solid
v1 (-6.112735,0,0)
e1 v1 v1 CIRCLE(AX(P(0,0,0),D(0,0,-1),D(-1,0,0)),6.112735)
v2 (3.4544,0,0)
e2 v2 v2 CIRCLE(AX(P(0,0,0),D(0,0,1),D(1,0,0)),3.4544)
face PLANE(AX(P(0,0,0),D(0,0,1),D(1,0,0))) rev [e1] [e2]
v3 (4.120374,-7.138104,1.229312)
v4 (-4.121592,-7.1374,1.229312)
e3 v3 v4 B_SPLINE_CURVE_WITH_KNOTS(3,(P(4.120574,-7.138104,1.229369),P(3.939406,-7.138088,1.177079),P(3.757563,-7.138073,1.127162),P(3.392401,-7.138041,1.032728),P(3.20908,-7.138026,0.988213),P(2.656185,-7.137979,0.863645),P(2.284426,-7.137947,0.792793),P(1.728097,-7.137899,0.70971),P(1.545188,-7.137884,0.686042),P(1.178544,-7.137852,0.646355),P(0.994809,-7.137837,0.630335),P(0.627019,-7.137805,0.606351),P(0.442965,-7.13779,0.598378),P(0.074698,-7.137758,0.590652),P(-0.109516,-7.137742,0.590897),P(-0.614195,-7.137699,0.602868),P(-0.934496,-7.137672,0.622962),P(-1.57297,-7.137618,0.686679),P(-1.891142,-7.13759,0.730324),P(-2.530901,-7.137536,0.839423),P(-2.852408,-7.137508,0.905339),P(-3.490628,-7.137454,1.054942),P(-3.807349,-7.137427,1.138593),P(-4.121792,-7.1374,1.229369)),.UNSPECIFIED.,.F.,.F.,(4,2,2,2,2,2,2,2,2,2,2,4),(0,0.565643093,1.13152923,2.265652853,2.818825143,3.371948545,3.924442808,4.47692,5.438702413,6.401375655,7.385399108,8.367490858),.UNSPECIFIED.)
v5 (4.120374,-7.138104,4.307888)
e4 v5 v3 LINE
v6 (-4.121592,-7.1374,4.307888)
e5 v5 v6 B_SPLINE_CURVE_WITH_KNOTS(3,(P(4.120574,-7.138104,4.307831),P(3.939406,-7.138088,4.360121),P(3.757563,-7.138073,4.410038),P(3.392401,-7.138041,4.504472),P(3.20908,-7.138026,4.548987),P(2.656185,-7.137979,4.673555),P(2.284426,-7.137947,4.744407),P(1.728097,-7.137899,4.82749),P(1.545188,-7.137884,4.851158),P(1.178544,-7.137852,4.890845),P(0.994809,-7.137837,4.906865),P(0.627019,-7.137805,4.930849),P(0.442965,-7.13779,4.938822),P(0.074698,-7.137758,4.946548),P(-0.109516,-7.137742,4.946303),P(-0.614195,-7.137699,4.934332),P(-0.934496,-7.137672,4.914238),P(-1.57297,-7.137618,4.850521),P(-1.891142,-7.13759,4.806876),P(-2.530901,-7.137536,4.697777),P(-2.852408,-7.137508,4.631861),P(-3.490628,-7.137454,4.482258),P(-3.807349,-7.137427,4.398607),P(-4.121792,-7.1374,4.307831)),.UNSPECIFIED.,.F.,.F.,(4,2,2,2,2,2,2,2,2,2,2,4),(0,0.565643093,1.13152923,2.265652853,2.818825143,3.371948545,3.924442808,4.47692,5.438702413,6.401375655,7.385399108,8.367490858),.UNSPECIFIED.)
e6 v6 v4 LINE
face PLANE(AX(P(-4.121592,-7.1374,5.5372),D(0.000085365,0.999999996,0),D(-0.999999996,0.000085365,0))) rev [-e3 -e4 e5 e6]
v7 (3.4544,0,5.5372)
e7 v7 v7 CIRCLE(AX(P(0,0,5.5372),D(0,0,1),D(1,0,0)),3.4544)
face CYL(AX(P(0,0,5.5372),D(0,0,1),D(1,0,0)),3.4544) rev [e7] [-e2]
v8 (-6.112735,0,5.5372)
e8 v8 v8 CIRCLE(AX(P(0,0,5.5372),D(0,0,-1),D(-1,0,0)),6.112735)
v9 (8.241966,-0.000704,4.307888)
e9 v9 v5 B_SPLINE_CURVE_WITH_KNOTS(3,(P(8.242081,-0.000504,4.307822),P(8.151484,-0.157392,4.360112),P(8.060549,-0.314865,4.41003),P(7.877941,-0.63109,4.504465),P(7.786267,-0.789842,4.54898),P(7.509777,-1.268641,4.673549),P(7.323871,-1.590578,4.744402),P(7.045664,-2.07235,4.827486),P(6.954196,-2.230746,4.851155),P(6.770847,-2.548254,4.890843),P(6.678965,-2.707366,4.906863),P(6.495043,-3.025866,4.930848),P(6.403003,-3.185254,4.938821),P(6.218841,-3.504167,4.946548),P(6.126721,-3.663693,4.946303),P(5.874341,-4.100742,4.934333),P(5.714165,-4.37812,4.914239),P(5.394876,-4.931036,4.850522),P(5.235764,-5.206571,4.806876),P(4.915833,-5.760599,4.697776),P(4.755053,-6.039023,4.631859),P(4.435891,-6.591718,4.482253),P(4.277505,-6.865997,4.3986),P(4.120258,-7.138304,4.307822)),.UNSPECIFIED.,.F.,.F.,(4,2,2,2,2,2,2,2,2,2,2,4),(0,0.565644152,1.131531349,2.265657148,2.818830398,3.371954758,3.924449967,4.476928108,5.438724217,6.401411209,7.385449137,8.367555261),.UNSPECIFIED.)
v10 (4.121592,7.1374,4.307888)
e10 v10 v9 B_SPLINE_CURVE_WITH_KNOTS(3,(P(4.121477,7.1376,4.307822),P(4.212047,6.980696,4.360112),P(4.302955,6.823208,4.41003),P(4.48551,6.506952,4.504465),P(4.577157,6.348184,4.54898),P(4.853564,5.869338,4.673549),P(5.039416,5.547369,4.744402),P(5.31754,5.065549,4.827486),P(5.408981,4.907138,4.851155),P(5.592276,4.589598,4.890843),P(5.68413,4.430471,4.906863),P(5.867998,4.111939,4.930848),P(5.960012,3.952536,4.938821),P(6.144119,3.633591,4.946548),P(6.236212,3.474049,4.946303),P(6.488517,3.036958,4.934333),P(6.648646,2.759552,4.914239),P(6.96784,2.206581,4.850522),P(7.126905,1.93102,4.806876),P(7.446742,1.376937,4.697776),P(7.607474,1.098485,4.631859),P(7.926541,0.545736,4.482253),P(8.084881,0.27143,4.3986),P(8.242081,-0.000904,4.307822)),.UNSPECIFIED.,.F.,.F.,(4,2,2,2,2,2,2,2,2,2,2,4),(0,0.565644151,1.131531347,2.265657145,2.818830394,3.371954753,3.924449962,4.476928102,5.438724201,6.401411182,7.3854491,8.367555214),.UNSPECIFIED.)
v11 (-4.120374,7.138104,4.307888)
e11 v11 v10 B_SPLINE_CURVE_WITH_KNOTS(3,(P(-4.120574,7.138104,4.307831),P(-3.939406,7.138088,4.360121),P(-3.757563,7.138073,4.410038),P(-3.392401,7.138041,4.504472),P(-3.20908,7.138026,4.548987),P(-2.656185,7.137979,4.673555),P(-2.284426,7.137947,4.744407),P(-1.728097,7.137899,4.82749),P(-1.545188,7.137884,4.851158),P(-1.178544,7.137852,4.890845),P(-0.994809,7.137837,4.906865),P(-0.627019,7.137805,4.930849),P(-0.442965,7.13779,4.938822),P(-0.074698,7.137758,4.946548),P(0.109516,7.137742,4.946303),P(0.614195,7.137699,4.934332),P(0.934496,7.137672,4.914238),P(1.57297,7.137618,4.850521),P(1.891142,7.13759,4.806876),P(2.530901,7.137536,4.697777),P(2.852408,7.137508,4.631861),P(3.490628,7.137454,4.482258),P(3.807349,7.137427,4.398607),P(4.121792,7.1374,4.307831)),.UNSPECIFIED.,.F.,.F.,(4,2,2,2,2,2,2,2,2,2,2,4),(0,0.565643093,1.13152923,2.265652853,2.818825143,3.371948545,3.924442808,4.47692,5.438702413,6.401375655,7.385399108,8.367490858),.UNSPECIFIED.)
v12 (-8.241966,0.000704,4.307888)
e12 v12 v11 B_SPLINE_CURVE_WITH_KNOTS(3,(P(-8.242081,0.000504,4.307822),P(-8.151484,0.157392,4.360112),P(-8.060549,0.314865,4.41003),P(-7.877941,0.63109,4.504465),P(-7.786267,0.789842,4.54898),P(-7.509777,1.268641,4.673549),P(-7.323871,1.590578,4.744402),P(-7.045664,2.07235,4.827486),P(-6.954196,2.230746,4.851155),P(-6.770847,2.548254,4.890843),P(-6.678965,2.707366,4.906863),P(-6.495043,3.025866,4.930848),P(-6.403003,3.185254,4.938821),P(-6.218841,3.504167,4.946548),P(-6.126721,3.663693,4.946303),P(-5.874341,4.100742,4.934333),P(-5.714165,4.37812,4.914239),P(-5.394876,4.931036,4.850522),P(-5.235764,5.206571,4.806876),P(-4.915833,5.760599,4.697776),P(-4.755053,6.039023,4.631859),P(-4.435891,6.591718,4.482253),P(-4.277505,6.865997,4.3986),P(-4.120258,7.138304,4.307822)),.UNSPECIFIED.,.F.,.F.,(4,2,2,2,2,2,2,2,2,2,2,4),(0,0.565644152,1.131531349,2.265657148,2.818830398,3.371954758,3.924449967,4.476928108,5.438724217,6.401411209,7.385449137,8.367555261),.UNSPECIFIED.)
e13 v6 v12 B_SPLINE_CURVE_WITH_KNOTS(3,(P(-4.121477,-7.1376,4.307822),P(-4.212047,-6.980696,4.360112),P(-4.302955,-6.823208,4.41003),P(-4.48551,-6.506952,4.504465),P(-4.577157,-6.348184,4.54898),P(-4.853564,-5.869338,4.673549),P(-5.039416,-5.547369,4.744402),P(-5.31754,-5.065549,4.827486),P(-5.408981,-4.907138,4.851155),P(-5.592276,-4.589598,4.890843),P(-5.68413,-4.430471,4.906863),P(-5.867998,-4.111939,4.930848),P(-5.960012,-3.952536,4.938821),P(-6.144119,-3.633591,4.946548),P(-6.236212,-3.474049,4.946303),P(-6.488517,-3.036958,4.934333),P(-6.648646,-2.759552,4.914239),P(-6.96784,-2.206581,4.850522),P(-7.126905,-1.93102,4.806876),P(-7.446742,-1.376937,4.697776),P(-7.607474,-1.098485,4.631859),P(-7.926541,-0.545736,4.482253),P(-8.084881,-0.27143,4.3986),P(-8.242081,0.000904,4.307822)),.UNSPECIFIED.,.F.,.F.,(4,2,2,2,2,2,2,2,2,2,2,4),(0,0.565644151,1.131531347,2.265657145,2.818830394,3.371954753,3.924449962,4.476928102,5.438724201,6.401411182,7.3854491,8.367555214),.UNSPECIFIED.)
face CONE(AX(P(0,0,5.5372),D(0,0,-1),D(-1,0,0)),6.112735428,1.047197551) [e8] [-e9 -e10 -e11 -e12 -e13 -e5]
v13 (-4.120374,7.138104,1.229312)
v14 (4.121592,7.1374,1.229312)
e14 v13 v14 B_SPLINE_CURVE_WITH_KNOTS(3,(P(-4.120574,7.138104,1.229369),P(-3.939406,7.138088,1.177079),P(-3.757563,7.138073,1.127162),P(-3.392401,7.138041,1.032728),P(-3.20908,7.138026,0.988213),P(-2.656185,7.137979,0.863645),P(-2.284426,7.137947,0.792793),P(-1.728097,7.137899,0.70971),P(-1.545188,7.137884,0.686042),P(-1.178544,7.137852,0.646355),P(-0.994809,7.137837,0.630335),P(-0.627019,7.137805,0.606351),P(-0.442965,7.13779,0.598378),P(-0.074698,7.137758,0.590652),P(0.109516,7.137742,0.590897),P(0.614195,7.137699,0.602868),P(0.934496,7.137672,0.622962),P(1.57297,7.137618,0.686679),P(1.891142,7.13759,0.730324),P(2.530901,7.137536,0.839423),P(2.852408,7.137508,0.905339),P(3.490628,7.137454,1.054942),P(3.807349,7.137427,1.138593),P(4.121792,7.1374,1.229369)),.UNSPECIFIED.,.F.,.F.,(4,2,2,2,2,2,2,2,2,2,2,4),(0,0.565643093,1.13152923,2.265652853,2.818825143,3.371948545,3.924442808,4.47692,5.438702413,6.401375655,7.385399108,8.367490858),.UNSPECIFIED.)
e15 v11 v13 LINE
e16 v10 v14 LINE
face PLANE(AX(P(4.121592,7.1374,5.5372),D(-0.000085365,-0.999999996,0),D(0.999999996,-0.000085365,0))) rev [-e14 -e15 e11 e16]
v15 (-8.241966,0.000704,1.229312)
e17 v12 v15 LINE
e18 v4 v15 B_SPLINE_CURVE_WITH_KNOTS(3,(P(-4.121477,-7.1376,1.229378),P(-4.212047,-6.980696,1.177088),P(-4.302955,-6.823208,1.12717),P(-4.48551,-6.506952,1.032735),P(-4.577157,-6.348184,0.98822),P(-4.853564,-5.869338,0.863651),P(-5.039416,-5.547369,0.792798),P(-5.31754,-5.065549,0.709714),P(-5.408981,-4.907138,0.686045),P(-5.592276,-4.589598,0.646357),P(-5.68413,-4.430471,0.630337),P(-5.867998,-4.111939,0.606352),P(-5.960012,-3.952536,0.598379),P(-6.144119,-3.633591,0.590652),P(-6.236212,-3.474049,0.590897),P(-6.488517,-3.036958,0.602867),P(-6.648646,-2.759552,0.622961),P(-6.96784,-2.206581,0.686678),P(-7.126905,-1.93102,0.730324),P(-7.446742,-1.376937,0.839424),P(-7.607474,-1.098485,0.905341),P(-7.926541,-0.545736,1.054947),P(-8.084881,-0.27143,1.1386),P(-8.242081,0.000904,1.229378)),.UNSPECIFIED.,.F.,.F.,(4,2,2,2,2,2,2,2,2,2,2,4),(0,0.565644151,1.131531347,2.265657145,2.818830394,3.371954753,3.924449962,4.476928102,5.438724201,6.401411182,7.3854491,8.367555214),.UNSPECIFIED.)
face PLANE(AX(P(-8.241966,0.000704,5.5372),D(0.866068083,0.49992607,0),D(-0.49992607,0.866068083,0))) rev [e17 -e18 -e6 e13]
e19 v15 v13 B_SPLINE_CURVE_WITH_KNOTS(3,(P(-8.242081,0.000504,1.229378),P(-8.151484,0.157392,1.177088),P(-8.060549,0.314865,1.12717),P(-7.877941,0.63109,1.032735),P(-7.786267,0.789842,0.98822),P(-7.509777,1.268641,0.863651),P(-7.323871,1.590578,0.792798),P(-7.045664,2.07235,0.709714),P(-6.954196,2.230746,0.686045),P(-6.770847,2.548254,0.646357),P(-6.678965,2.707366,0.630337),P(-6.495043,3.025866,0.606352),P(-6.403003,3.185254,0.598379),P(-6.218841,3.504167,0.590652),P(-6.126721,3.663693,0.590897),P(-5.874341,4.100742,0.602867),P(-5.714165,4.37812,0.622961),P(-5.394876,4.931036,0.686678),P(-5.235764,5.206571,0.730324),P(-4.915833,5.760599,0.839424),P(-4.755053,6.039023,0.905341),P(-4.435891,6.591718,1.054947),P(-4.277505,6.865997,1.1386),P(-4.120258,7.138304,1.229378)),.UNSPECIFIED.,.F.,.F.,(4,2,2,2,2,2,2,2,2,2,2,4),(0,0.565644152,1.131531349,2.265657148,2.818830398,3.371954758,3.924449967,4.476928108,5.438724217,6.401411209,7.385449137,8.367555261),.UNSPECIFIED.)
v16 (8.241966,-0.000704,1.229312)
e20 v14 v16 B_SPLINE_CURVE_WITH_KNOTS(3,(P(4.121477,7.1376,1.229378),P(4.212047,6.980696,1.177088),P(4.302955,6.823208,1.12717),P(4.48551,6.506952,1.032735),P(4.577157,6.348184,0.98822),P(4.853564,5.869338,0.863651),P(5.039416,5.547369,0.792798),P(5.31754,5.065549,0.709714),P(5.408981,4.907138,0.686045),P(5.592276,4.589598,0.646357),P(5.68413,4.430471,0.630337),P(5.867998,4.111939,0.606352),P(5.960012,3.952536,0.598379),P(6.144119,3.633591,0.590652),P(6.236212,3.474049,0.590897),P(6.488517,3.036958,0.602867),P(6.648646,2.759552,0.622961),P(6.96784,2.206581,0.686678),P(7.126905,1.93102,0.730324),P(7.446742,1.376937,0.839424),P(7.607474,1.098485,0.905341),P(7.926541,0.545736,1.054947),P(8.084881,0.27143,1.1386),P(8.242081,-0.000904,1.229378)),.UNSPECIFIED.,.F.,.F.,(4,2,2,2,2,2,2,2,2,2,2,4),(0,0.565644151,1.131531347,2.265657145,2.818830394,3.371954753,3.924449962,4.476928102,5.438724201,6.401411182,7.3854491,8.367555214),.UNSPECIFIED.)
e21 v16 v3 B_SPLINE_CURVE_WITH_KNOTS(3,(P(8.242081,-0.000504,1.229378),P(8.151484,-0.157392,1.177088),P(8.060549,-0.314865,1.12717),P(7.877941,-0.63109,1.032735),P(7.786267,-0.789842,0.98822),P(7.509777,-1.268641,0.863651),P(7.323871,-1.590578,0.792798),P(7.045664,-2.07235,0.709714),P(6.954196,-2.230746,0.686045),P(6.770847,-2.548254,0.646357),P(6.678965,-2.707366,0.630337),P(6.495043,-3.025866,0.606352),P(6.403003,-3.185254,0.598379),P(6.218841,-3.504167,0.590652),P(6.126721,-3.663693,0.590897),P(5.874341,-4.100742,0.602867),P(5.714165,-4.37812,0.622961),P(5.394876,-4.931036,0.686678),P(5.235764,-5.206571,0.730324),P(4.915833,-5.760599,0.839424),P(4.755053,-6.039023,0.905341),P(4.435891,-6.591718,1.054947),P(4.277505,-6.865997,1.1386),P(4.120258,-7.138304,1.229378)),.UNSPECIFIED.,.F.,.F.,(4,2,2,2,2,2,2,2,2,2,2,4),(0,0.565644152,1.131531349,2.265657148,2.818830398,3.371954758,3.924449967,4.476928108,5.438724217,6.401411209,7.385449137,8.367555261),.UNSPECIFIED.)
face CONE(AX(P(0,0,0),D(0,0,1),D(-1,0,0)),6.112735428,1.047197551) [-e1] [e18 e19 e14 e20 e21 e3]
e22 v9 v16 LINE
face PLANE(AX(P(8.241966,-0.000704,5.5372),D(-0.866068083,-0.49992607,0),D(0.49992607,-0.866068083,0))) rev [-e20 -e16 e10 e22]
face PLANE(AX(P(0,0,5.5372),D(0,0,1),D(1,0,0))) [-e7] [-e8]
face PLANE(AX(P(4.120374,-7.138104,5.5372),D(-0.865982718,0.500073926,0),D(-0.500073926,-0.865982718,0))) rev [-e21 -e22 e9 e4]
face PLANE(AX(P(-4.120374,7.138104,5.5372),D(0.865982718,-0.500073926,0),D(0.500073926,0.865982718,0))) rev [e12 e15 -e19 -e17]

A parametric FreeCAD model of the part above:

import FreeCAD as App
import Part
import Sketcher
Q = App.Units.Quantity


def faces_at(feature, points):
    """Names of the faces that lie closest to the given points."""
    faces = feature.Shape.Faces
    near = lambda p: min(range(len(faces)), key=lambda i: faces[i].distToShape(Part.Vertex(*p))[0])
    return sorted({f"Face{near(p) + 1}" for p in points})

doc = App.newDocument("Part")
body = doc.addObject("PartDesign::Body", "Body")

# Sketch on XY plane
sketch1 = doc.addObject("Sketcher::SketchObject", "Sketch")
body.addObject(sketch1)
sketch1.AttachmentSupport = (doc.XY_Plane, [""])
sketch1.MapMode = "FlatFace"
sketch1.addGeometry(Part.LineSegment(App.Vector(4, 7, 0), App.Vector(-4, 7, 0)), False)
sketch1.addGeometry(Part.LineSegment(App.Vector(-4, 7, 0), App.Vector(-8, 0, 0)), False)
sketch1.addGeometry(Part.LineSegment(App.Vector(-8, 0, 0), App.Vector(-4, -7, 0)), False)
sketch1.addGeometry(Part.LineSegment(App.Vector(-4, -7, 0), App.Vector(4, -7, 0)), False)
sketch1.addGeometry(Part.LineSegment(App.Vector(4, -7, 0), App.Vector(8, 0, 0)), False)
sketch1.addGeometry(Part.LineSegment(App.Vector(8, 0, 0), App.Vector(4, 7, 0)), False)
sketch1.addConstraint(Sketcher.Constraint("Coincident", 0, 2, 1, 1))
sketch1.addConstraint(Sketcher.Constraint("Coincident", 1, 2, 2, 1))
sketch1.addConstraint(Sketcher.Constraint("Coincident", 2, 2, 3, 1))
sketch1.addConstraint(Sketcher.Constraint("Coincident", 3, 2, 4, 1))
sketch1.addConstraint(Sketcher.Constraint("Coincident", 4, 2, 5, 1))
sketch1.addConstraint(Sketcher.Constraint("Coincident", 5, 2, 0, 1))
sketch1.addConstraint(Sketcher.Constraint("Symmetric", 0, 2, 3, 2, -1, 1))
sketch1.addConstraint(Sketcher.Constraint("Symmetric", 1, 2, 4, 2, -1, 1))
sketch1.addConstraint(Sketcher.Constraint("Symmetric", 2, 2, 5, 2, -1, 1))
sketch1.addConstraint(Sketcher.Constraint("Equal", 0, 1))
sketch1.addConstraint(Sketcher.Constraint("Equal", 1, 2))
sketch1.addConstraint(Sketcher.Constraint("DistanceY", 2, 2, -1, 1, Q("0.281 in")))
sketch1.addConstraint(Sketcher.Constraint("DistanceY", 1, 2, 0, 2, Q("0.281 in")))
sketch1.addConstraint(Sketcher.Constraint("DistanceX", 2, 2, 0, 2, Q("0.001219 mm")))
sketch1.addConstraint(Sketcher.Constraint("DistanceX", 1, 2, 3, 2, Q("12.362339 mm")))
pad1 = doc.addObject("PartDesign::Pad", "Pad")
body.addObject(pad1)
pad1.Profile = sketch1
pad1.Length = Q("0.218 in")
body2 = doc.addObject("PartDesign::Body", "Body001")

# Sketch on XY plane
sketch2 = doc.addObject("Sketcher::SketchObject", "Sketch001")
body2.addObject(sketch2)
sketch2.AttachmentSupport = (doc.getObject("XY_Plane001"), [""])
sketch2.MapMode = "FlatFace"
sketch2.addGeometry(Part.LineSegment(App.Vector(34, 33, 0), App.Vector(34, -33, 0)), False)
sketch2.addGeometry(Part.LineSegment(App.Vector(34, -33, 0), App.Vector(-34, -33, 0)), False)
sketch2.addGeometry(Part.LineSegment(App.Vector(-34, -33, 0), App.Vector(-34, 33, 0)), False)
sketch2.addGeometry(Part.LineSegment(App.Vector(-34, 33, 0), App.Vector(34, 33, 0)), False)
sketch2.addGeometry(Part.Circle(App.Vector(0, 0, 0), App.Vector(0, 0, 1), 6), False)
sketch2.addConstraint(Sketcher.Constraint("Coincident", 0, 2, 1, 1))
sketch2.addConstraint(Sketcher.Constraint("Coincident", 1, 2, 2, 1))
sketch2.addConstraint(Sketcher.Constraint("Coincident", 2, 2, 3, 1))
sketch2.addConstraint(Sketcher.Constraint("Coincident", 3, 2, 0, 1))
sketch2.addConstraint(Sketcher.Constraint("Vertical", 0))
sketch2.addConstraint(Sketcher.Constraint("Horizontal", 1))
sketch2.addConstraint(Sketcher.Constraint("Vertical", 2))
sketch2.addConstraint(Sketcher.Constraint("Horizontal", 3))
sketch2.addConstraint(Sketcher.Constraint("Coincident", 4, 3, -1, 1))
sketch2.addConstraint(Sketcher.Constraint("Symmetric", 0, 2, 2, 2, -1, 1))
sketch2.addConstraint(Sketcher.Constraint("Diameter", 4, Q("12.225471 mm")))
sketch2.addConstraint(Sketcher.Constraint("DistanceX", 1, 2, 1, 1, Q("68.81 mm")))
sketch2.addConstraint(Sketcher.Constraint("DistanceY", 0, 2, 0, 1, Q("66.602 mm")))
pad2 = doc.addObject("PartDesign::Pad", "Pad001")
body2.addObject(pad2)
pad2.Profile = sketch2
pad2.Length = 13.228782
doc.recompute()

draft = doc.addObject("PartDesign::Draft", "Draft")
body2.addObject(draft)
draft.Base = (pad2, faces_at(pad2, [
    (0, -33.301, 6.614),
    (-34.405, 0, 6.614),
    (0, 33.301, 6.614),
    (34.405, 0, 6.614),
    (6.113, 0, 6.614),
]))
draft.NeutralPlane = (doc.getObject("XY_Plane001"), [""])
draft.Angle = 60
draft.Reversed = False
doc.recompute()

boolean = doc.addObject("PartDesign::Boolean", "Boolean")
body.addObject(boolean)
boolean.Type = "Cut"
boolean.addObjects([body2])
body3 = doc.addObject("PartDesign::Body", "Body002")

# Sketch on XY plane
sketch3 = doc.addObject("Sketcher::SketchObject", "Sketch002")
body3.addObject(sketch3)
sketch3.AttachmentSupport = (doc.getObject("XY_Plane002"), [""])
sketch3.MapMode = "FlatFace"
sketch3.AttachmentOffset = App.Placement(App.Vector(0, 0, 0.218 * 25.4), App.Rotation())
sketch3.addGeometry(Part.LineSegment(App.Vector(34, -33, 0), App.Vector(34, 33, 0)), False)
sketch3.addGeometry(Part.LineSegment(App.Vector(34, 33, 0), App.Vector(-34, 33, 0)), False)
sketch3.addGeometry(Part.LineSegment(App.Vector(-34, 33, 0), App.Vector(-34, -33, 0)), False)
sketch3.addGeometry(Part.LineSegment(App.Vector(-34, -33, 0), App.Vector(34, -33, 0)), False)
sketch3.addGeometry(Part.Circle(App.Vector(0, 0, 0), App.Vector(0, 0, 1), 6), False)
sketch3.addConstraint(Sketcher.Constraint("Coincident", 0, 2, 1, 1))
sketch3.addConstraint(Sketcher.Constraint("Coincident", 1, 2, 2, 1))
sketch3.addConstraint(Sketcher.Constraint("Coincident", 2, 2, 3, 1))
sketch3.addConstraint(Sketcher.Constraint("Coincident", 3, 2, 0, 1))
sketch3.addConstraint(Sketcher.Constraint("Vertical", 0))
sketch3.addConstraint(Sketcher.Constraint("Horizontal", 1))
sketch3.addConstraint(Sketcher.Constraint("Vertical", 2))
sketch3.addConstraint(Sketcher.Constraint("Horizontal", 3))
sketch3.addConstraint(Sketcher.Constraint("Coincident", 4, 3, -1, 1))
sketch3.addConstraint(Sketcher.Constraint("Symmetric", 0, 2, 2, 2, -1, 1))
sketch3.addConstraint(Sketcher.Constraint("Diameter", 4, Q("12.225471 mm")))
sketch3.addConstraint(Sketcher.Constraint("DistanceX", 1, 2, 1, 1, Q("68.81 mm")))
sketch3.addConstraint(Sketcher.Constraint("DistanceY", 0, 1, 0, 2, Q("66.602 mm")))
pad3 = doc.addObject("PartDesign::Pad", "Pad002")
body3.addObject(pad3)
pad3.Profile = sketch3
pad3.Length = 13.228782
pad3.Reversed = True
doc.recompute()

datumplane = doc.addObject("PartDesign::Plane", "DatumPlane")
body3.addObject(datumplane)
datumplane.AttachmentSupport = (doc.getObject("XY_Plane002"), [""])
datumplane.MapMode = "FlatFace"
datumplane.AttachmentOffset = App.Placement(App.Vector(0, 0, 0.218 * 25.4), App.Rotation())
draft2 = doc.addObject("PartDesign::Draft", "Draft001")
body3.addObject(draft2)
draft2.Base = (pad3, faces_at(pad3, [
    (0, -33.301, -1.077),
    (-34.405, 0, -1.077),
    (0, 33.301, -1.077),
    (34.405, 0, -1.077),
    (6.113, 0, -1.077),
]))
draft2.NeutralPlane = (datumplane, [""])
draft2.Angle = 60
draft2.Reversed = True
doc.recompute()

boolean2 = doc.addObject("PartDesign::Boolean", "Boolean001")
body.addObject(boolean2)
boolean2.Type = "Cut"
boolean2.addObjects([body3])

# Sketch on XY plane
sketch4 = doc.addObject("Sketcher::SketchObject", "Sketch003")
body.addObject(sketch4)
sketch4.AttachmentSupport = (doc.XY_Plane, [""])
sketch4.MapMode = "FlatFace"
sketch4.AttachmentOffset = App.Placement(App.Vector(0, 0, 0.218 * 25.4), App.Rotation())
sketch4.addGeometry(Part.Circle(App.Vector(0, 0, 0), App.Vector(0, 0, 1), 3.5), False)
sketch4.addConstraint(Sketcher.Constraint("Coincident", 0, 3, -1, 1))
sketch4.addConstraint(Sketcher.Constraint("Diameter", 0, Q("0.272 in")))
doc.recompute()
hole = doc.addObject("PartDesign::Hole", "Hole")
body.addObject(hole)
hole.Profile = sketch4
hole.ThreadType = "None"
hole.Diameter = Q("0.272 in")
hole.DepthType = "Dimension"
hole.Depth = Q("0.84 in")
hole.DrillPoint = "Angled"
hole.DrillPointAngle = 118

doc.recompute()
